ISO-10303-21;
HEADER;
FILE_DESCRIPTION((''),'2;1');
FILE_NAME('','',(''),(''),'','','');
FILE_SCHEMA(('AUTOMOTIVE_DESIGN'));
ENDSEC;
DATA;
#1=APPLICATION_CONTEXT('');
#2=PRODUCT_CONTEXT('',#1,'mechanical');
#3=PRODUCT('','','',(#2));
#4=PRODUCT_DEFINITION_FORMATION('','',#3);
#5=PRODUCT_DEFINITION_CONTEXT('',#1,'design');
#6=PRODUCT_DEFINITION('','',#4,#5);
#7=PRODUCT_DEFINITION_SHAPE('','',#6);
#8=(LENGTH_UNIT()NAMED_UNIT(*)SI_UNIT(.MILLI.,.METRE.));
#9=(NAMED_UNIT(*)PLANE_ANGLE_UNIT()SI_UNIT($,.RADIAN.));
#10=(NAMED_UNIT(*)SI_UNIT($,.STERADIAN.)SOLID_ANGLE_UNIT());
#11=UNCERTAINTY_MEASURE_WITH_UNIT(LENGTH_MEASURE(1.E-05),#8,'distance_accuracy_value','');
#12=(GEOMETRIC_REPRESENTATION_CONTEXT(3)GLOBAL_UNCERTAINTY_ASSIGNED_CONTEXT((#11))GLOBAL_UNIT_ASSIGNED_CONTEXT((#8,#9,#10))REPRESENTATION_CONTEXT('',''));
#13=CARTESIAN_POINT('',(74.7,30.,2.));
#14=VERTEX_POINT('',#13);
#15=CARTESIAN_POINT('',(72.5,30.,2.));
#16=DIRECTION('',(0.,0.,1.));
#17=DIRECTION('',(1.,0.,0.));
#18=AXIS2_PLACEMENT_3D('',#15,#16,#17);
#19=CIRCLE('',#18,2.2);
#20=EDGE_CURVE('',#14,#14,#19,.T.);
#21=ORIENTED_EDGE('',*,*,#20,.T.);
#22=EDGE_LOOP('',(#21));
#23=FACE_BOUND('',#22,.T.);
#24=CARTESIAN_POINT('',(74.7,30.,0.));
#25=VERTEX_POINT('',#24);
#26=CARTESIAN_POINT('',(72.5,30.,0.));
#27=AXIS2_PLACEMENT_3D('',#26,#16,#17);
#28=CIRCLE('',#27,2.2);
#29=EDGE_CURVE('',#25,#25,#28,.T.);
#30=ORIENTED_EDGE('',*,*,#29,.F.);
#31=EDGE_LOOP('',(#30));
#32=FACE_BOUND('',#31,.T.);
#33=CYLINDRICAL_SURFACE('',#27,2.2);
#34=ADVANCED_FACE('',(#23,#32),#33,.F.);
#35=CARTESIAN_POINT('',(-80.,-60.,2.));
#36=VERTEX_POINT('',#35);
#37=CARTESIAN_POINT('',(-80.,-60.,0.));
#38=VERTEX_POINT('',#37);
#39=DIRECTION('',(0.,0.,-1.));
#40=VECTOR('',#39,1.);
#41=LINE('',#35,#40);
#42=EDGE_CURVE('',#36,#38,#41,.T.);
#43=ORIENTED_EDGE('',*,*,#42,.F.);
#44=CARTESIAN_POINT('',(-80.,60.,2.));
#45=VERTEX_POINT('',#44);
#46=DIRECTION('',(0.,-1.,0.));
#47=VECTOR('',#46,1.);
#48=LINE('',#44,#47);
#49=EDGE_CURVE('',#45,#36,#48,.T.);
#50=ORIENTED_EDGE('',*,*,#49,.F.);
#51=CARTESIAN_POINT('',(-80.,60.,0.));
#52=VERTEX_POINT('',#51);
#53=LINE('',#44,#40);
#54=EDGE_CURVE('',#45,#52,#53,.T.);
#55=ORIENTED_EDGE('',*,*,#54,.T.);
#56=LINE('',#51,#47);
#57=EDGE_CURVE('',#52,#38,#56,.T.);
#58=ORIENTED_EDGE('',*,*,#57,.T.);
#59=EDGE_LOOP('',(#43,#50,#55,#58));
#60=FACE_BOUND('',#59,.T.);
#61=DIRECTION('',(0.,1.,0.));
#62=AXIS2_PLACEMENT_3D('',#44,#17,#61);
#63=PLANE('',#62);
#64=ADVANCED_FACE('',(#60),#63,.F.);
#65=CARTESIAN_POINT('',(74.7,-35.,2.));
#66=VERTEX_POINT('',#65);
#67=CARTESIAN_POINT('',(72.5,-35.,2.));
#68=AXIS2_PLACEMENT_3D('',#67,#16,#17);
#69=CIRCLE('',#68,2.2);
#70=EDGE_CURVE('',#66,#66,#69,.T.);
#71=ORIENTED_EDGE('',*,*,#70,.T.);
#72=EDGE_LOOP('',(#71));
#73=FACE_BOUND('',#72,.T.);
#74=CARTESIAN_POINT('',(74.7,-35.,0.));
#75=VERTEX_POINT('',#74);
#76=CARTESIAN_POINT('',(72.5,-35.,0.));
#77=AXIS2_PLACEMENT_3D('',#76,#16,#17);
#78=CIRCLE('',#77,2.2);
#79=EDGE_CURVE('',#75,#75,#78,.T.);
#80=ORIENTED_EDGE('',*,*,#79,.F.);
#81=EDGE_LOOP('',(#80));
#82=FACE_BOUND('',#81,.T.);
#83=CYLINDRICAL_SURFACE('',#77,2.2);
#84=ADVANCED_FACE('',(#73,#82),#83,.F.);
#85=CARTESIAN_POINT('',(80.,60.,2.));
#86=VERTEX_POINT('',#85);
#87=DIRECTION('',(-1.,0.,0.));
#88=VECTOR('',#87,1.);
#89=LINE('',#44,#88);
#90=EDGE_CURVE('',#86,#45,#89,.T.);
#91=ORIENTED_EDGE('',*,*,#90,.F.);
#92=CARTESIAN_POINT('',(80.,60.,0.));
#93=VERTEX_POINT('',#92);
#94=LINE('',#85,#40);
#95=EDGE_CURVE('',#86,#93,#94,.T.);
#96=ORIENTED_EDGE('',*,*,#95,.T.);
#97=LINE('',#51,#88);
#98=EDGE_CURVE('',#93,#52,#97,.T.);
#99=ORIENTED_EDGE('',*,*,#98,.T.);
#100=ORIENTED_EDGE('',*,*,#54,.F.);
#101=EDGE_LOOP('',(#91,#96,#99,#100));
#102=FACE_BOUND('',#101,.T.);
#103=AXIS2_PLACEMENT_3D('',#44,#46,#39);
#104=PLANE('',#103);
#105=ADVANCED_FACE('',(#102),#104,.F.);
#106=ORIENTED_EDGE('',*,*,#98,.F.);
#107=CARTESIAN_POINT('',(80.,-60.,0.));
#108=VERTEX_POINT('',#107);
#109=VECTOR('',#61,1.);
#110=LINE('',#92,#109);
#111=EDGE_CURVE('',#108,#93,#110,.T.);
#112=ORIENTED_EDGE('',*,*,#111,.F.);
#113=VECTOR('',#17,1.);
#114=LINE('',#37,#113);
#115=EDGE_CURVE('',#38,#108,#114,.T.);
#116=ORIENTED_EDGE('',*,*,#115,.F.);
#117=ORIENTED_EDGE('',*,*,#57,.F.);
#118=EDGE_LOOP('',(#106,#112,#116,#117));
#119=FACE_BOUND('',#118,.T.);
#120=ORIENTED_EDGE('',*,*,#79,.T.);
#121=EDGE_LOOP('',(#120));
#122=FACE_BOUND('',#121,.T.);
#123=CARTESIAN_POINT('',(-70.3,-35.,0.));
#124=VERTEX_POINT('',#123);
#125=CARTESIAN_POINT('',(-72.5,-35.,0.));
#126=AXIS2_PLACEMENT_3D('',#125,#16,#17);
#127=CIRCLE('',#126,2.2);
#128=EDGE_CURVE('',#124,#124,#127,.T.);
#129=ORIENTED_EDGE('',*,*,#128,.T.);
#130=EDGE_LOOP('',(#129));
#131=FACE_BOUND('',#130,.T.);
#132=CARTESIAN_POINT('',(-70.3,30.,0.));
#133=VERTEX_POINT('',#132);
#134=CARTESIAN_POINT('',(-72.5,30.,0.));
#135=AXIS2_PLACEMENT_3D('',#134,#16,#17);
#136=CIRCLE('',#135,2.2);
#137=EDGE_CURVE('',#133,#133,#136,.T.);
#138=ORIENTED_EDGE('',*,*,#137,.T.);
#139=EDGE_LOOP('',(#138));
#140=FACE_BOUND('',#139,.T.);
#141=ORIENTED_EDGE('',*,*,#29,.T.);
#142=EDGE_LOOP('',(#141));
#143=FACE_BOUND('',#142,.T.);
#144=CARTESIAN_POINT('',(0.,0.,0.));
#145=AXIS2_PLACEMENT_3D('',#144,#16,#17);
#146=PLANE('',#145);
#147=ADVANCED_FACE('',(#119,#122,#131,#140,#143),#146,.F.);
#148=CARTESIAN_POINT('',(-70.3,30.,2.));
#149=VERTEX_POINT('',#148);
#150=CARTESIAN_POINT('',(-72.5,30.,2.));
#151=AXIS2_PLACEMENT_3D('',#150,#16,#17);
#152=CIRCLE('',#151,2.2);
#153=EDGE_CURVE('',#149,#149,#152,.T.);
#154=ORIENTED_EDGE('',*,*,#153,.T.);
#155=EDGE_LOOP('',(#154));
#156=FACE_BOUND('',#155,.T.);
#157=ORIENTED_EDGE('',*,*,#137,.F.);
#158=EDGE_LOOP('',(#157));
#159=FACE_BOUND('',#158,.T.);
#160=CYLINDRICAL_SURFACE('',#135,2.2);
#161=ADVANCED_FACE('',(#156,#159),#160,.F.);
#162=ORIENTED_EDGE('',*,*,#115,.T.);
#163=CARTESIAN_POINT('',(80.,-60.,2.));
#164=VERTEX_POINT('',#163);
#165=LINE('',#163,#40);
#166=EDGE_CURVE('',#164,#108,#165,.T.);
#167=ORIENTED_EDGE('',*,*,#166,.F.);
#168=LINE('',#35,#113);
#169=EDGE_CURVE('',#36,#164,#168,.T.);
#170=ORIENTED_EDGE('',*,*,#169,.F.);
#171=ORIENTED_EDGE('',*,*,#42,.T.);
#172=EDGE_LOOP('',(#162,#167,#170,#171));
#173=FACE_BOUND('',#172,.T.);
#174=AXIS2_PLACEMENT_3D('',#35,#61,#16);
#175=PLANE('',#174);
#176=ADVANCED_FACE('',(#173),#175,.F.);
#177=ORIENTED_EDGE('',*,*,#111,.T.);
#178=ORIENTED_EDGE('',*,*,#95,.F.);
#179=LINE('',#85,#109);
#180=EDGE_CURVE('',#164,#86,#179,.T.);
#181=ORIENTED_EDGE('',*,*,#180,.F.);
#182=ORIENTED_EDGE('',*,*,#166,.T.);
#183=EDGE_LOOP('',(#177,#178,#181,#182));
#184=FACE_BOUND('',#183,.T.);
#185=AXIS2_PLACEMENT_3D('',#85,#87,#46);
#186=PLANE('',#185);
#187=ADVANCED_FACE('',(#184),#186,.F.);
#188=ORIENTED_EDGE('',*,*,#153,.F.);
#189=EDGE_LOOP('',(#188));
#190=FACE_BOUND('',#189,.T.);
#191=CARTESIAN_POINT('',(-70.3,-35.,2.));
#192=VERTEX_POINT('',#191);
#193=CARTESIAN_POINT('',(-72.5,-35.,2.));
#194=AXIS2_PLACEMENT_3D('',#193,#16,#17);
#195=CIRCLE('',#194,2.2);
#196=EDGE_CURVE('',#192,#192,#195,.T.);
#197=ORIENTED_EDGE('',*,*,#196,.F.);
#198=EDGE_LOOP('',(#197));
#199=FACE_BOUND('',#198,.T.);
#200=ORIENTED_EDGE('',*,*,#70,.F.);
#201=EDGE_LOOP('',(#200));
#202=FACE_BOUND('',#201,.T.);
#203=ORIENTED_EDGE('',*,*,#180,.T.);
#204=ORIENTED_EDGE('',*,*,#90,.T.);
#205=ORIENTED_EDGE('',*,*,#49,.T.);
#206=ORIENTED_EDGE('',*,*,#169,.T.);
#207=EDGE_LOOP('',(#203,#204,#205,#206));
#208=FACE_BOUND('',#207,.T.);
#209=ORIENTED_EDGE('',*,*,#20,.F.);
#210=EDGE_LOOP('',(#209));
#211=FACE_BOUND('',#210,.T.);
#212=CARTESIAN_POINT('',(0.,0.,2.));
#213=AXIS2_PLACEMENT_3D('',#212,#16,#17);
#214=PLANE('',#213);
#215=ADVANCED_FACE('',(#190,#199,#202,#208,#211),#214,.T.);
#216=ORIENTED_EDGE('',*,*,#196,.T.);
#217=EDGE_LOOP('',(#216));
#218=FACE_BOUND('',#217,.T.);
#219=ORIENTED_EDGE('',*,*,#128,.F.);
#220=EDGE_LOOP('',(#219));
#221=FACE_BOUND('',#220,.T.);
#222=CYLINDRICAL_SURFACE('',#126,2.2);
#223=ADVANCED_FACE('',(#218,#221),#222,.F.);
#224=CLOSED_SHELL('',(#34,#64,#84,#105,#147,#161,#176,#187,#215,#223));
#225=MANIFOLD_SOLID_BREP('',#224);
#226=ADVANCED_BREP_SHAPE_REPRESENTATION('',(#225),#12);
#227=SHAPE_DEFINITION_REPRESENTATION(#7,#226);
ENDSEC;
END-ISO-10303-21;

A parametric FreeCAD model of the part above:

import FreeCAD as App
import Part
import Sketcher


def add_polygon(sketch, points):
    """Adds a closed chain of lines whose ends are joined by coincident constraints."""
    first, n = sketch.GeometryCount, len(points)
    for a, b in zip(points, points[1:] + points[:1]):
        sketch.addGeometry(Part.LineSegment(App.Vector(*a, 0), App.Vector(*b, 0)), False)
    for i in range(n):
        sketch.addConstraint(Sketcher.Constraint("Coincident", first + i, 2, first + (i + 1) % n, 1))

doc = App.newDocument("Part")
body = doc.addObject("PartDesign::Body", "Body")

sketch1 = body.newObject("Sketcher::SketchObject", "Sketch")
sketch1.AttachmentSupport = (doc.getObject("XY_Plane"), [""])
sketch1.MapMode = "FlatFace"
add_polygon(sketch1, [(-80, 60), (-80, -60), (80, -60), (80, 60)])
sketch1.addConstraint([
    Sketcher.Constraint("Vertical", 0),
    Sketcher.Constraint("Horizontal", 1),
    Sketcher.Constraint("Vertical", 2),
    Sketcher.Constraint("Horizontal", 3),
    Sketcher.Constraint("Symmetric", 0, 2, 2, 2, -1, 1),
    Sketcher.Constraint("DistanceX", 1, 1, 1, 2, 160.0),
    Sketcher.Constraint("DistanceY", 0, 2, 0, 1, 120.0),
])
pad1 = body.newObject("PartDesign::Pad", "Pad")
pad1.Profile = sketch1
pad1.Length = 2

sketch2 = body.newObject("Sketcher::SketchObject", "Sketch001")
sketch2.AttachmentSupport = (doc.getObject("XY_Plane"), [""])
sketch2.MapMode = "FlatFace"
sketch2.AttachmentOffset = App.Placement(App.Vector(0, 0, 2), App.Rotation())
sketch2.addGeometry([
    Part.Circle(App.Vector(-72.5, -35, 0), App.Vector(0, 0, 1), 2.2),
    Part.Circle(App.Vector(-72.5, 30, 0), App.Vector(0, 0, 1), 2.2),
    Part.Circle(App.Vector(72.5, -35, 0), App.Vector(0, 0, 1), 2.2),
    Part.Circle(App.Vector(72.5, 30, 0), App.Vector(0, 0, 1), 2.2),
], False)
sketch2.addConstraint([
    Sketcher.Constraint("Equal", 0, 1),
    Sketcher.Constraint("Equal", 1, 2),
    Sketcher.Constraint("Equal", 2, 3),
    Sketcher.Constraint("Symmetric", 0, 3, 2, 3, -2),
    Sketcher.Constraint("Symmetric", 1, 3, 3, 3, -2),
    Sketcher.Constraint("Vertical", 0, 3, 1, 3),
    Sketcher.Constraint("Diameter", 0, 4.4),
    Sketcher.Constraint("DistanceY", 0, 3, -1, 1, 35.0),
    Sketcher.Constraint("DistanceY", -1, 1, 1, 3, 30.0),
    Sketcher.Constraint("DistanceX", 0, 3, 2, 3, 145.0),
])
pocket1 = body.newObject("PartDesign::Pocket", "Pocket")
pocket1.Profile = sketch2
pocket1.Length = 2

doc.recompute()
